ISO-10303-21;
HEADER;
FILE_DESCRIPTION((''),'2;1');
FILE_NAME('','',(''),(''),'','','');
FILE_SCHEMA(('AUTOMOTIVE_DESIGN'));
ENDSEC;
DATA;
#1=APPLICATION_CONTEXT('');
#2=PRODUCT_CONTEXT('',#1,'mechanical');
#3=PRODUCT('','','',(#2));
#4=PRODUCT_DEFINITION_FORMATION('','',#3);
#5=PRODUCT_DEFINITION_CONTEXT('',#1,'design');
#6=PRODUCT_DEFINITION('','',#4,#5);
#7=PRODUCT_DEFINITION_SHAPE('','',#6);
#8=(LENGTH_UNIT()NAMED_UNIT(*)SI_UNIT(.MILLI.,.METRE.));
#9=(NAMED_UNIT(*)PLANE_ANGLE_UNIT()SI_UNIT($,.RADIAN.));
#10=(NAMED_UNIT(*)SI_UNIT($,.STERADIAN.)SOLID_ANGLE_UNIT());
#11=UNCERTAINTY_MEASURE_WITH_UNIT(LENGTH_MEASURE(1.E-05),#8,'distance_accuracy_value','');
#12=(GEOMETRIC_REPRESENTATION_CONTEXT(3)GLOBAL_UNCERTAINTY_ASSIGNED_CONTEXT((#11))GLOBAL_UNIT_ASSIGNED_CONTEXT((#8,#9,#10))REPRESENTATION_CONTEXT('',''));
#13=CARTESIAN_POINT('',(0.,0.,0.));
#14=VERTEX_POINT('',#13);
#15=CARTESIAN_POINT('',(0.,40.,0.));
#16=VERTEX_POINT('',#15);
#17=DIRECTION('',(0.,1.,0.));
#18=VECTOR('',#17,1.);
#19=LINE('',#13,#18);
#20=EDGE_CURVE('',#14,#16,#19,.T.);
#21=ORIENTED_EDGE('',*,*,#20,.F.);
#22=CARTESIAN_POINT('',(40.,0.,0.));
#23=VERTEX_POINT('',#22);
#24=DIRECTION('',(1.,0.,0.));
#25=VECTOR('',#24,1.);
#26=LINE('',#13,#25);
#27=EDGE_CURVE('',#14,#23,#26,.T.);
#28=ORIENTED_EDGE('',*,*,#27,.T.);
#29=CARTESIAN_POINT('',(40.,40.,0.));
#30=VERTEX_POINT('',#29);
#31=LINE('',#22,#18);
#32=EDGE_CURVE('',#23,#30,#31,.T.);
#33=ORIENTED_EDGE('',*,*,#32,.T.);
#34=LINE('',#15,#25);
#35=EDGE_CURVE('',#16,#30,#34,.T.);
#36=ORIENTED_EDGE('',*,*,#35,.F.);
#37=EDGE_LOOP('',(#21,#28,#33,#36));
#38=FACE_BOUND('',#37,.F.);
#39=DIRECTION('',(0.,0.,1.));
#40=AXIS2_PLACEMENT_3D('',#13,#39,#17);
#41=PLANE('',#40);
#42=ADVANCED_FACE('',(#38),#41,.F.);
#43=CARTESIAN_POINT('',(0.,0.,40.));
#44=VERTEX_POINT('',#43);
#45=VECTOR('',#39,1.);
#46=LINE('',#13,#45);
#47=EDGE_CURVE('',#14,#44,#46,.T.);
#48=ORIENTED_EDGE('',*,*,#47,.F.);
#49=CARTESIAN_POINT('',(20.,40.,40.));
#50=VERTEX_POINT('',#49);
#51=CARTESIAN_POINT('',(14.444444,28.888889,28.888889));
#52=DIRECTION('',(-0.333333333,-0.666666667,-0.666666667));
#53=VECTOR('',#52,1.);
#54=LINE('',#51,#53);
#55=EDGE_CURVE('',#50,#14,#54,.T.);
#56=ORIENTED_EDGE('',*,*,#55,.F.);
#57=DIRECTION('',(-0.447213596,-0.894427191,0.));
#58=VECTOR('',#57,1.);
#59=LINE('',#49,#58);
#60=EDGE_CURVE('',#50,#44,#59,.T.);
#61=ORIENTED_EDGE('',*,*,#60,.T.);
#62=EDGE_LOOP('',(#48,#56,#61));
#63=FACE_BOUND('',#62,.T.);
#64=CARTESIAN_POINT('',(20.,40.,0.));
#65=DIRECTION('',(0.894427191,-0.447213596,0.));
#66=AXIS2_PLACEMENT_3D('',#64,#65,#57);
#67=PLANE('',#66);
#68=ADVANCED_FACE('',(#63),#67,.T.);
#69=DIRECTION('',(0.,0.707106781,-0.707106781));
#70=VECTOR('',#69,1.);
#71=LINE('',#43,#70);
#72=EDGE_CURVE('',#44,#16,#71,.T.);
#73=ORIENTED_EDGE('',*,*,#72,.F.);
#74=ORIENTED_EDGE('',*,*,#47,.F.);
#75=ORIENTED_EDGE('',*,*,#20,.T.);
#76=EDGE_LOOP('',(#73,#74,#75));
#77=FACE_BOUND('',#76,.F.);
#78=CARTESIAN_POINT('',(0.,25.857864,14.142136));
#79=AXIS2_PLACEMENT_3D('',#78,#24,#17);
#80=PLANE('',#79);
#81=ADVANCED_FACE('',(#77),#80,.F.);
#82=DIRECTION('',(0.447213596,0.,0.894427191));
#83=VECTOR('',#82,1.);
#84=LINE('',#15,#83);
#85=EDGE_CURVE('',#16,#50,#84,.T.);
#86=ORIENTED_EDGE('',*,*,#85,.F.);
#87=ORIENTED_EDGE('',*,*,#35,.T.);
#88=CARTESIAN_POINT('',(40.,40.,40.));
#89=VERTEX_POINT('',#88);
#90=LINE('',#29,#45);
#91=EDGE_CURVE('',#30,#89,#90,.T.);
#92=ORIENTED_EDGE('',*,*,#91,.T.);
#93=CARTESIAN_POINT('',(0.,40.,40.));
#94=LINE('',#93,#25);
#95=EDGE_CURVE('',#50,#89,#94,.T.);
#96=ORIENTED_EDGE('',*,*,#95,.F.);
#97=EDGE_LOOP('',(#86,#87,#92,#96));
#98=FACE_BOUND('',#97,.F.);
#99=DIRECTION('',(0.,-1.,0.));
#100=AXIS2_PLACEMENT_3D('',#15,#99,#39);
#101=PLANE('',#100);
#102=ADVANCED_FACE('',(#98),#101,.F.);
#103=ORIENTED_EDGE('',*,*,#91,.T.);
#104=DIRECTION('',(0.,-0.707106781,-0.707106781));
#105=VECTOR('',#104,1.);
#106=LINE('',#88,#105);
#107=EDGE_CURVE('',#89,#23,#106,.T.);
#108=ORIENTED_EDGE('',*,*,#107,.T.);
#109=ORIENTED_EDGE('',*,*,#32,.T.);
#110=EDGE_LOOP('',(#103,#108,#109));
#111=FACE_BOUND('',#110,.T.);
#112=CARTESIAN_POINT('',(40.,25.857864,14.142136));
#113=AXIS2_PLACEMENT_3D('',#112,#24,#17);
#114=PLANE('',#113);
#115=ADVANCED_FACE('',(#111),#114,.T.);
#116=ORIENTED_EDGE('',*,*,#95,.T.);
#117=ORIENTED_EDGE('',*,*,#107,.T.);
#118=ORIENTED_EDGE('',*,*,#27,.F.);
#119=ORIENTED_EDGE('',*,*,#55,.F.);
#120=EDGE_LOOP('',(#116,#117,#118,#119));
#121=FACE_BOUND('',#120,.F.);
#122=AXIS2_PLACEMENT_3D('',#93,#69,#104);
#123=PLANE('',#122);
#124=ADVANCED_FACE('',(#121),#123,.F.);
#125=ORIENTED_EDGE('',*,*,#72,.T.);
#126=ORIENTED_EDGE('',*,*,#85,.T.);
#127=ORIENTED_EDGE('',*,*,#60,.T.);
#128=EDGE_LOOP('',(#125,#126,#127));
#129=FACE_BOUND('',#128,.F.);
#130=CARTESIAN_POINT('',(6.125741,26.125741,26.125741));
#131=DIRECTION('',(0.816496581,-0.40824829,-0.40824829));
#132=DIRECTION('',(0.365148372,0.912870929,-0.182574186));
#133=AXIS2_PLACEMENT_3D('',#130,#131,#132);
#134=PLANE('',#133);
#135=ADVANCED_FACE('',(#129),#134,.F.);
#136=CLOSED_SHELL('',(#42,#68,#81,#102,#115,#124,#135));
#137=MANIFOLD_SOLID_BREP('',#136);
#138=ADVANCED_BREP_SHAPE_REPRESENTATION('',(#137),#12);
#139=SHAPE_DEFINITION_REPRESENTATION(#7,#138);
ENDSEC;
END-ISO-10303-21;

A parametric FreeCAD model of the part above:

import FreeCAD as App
import Part
import Sketcher
Q = App.Units.Quantity


def add_polygon(sketch, points):
    """Adds a closed chain of lines whose ends are joined by coincident constraints."""
    first, n = sketch.GeometryCount, len(points)
    for a, b in zip(points, points[1:] + points[:1]):
        sketch.addGeometry(Part.LineSegment(App.Vector(*a, 0), App.Vector(*b, 0)), False)
    for i in range(n):
        sketch.addConstraint(Sketcher.Constraint("Coincident", first + i, 2, first + (i + 1) % n, 1))

doc = App.newDocument("Part")
params = doc.addObject("Spreadsheet::Sheet", "Params")
for row, (alias, value) in enumerate([
    ("sketch1_width", "40 mm"),
    ("pad1_length", "40 mm"),
    ("sketch2_width", "20 mm"),
    ("sketch2_height", "40 mm"),
    ("pad2_length", "40 mm"),
], start=1):
    params.set(f"A{row}", alias)
    params.set(f"B{row}", "=" + value)
    params.setAlias(f"B{row}", alias)

body = doc.addObject("PartDesign::Body", "Body")

# Sketch on YZ plane
sketch1 = body.newObject("Sketcher::SketchObject", "Sketch")
sketch1.AttachmentSupport = (doc.getObject("YZ_Plane"), [""])
sketch1.MapMode = "FlatFace"
add_polygon(sketch1, [(40, 40), (0, 0), (40, 0)])  # lines 0-2
sketch1.addConstraint([
    Sketcher.Constraint("Horizontal", 1),
    Sketcher.Constraint("Vertical", 2),
    Sketcher.Constraint("Coincident", 0, 2, -1, 1),
    Sketcher.Constraint("Equal", 1, 2),
    Sketcher.Constraint("DistanceX", 1, 1, 1, 2, Q("40 mm")),
])
sketch1.setExpression("Constraints[7]", "Params.sketch1_width")
pad1 = body.newObject("PartDesign::Pad", "Pad")
pad1.Profile = sketch1
pad1.setExpression("Length", "Params.pad1_length")

# Sketch on XY plane
sketch2 = body.newObject("Sketcher::SketchObject", "Sketch001")
sketch2.AttachmentSupport = (doc.getObject("XY_Plane"), [""])
sketch2.MapMode = "FlatFace"
add_polygon(sketch2, [(20, 40), (0, 0), (0, 40)])  # lines 0-2
sketch2.addConstraint([
    Sketcher.Constraint("Vertical", 1),
    Sketcher.Constraint("Horizontal", 2),
    Sketcher.Constraint("Coincident", 0, 2, -1, 1),
    Sketcher.Constraint("DistanceX", 2, 1, 2, 2, Q("20 mm")),
    Sketcher.Constraint("DistanceY", 1, 1, 1, 2, Q("40 mm")),
])
sketch2.setExpression("Constraints[6]", "Params.sketch2_width")
sketch2.setExpression("Constraints[7]", "Params.sketch2_height")
pad2 = body.newObject("PartDesign::Pad", "Pad001")
pad2.Profile = sketch2
pad2.setExpression("Length", "Params.pad2_length")

# Sketch on an angled plane
sketch3 = body.newObject("Sketcher::SketchObject", "Sketch002")
sketch3.Placement = App.Placement(App.Vector(-13.333333, 6.666667, 6.666667), App.Rotation(App.Vector(0.365148372, 0.912870929, -0.182574186), App.Vector(0.447213595, 0, 0.894427191), App.Vector(0.816496581, -0.40824829, -0.40824829), "ZXY"))
add_polygon(sketch3, [(37, 0), (37, 45), (-7, 36)])  # lines 0-2
sketch3.addConstraint([
    Sketcher.Constraint("Vertical", 0),
    Sketcher.Constraint("PointOnObject", 2, 2, -1),
    Sketcher.Constraint("DistanceY", 0, 1, 0, 2, Q("44.72136 mm")),
    Sketcher.Constraint("Distance", 1, Q("44.72136 mm")),
    Sketcher.Constraint("DistanceY", 1, 2, 0, 2, Q("8.944272 mm")),
    Sketcher.Constraint("DistanceX", -1, 1, 0, 2, Q("36.514837 mm")),
])
pocket1 = body.newObject("PartDesign::Pocket", "Pocket")
pocket1.Profile = sketch3
pocket1.Type = "ThroughAll"

doc.recompute()
